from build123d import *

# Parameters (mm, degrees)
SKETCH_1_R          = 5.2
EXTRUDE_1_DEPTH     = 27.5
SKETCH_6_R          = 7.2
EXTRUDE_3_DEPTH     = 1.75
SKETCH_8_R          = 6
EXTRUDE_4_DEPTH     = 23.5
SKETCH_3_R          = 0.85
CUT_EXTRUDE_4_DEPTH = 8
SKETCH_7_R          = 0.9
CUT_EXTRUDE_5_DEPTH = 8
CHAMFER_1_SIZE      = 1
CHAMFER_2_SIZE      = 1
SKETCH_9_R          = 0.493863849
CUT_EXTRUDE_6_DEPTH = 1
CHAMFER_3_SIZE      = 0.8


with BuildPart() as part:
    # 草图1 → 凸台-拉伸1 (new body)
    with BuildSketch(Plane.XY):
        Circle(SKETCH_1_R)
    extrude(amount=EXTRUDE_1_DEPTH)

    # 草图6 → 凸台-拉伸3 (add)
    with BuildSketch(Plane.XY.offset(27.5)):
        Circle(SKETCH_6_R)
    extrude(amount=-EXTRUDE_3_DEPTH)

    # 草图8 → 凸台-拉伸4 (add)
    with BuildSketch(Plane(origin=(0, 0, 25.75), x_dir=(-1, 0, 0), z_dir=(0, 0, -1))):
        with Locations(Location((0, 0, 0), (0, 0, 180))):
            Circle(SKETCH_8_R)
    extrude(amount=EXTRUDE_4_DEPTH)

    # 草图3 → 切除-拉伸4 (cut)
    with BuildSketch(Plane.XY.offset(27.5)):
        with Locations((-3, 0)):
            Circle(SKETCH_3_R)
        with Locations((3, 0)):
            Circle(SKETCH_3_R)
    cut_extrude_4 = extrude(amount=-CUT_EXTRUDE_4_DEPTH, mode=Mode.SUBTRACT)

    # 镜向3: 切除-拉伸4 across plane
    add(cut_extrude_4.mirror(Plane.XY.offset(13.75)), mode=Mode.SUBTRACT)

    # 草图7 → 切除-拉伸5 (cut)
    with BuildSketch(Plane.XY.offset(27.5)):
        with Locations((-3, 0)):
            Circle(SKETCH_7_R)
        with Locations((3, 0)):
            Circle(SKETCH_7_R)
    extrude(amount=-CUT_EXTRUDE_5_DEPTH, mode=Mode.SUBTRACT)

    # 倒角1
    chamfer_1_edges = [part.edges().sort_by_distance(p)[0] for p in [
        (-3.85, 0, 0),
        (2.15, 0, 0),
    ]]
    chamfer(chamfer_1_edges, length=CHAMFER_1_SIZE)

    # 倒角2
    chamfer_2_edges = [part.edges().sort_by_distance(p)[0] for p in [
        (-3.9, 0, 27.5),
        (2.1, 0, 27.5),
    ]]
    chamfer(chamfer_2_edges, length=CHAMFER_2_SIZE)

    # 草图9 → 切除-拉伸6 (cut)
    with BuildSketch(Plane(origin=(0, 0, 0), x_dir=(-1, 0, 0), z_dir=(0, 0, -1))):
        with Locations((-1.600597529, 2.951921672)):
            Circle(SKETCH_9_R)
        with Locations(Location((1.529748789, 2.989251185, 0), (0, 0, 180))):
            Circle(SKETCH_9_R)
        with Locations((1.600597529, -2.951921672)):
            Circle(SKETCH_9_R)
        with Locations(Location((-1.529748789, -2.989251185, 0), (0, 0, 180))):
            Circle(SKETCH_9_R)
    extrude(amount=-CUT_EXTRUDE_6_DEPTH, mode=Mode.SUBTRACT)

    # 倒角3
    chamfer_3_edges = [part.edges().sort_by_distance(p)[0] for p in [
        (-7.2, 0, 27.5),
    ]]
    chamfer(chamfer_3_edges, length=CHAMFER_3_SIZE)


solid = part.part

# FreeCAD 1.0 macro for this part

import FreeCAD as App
import Part
import Sketcher


def edges_at(feature, points):
    """Names of the edges that pass closest to the given points."""
    edges = feature.Shape.Edges
    near = lambda p: min(range(len(edges)), key=lambda i: edges[i].distToShape(Part.Vertex(*p))[0])
    return sorted({f"Edge{near(p) + 1}" for p in points})

doc = App.newDocument("Part")
body = doc.addObject("PartDesign::Body", "Body")

sketch1 = body.newObject("Sketcher::SketchObject", "Sketch")
sketch1.AttachmentSupport = (doc.getObject("XY_Plane"), [""])
sketch1.MapMode = "FlatFace"
sketch1.addGeometry(Part.Circle(App.Vector(0, 0, 0), App.Vector(0, 0, 1), 5), False)
sketch1.addConstraint([
    Sketcher.Constraint("Coincident", 0, 3, -1, 1),
    Sketcher.Constraint("Diameter", 0, 10.4),
])
pad1 = body.newObject("PartDesign::Pad", "Pad")
pad1.Profile = sketch1
pad1.Length = 27.5

sketch2 = body.newObject("Sketcher::SketchObject", "Sketch001")
sketch2.AttachmentSupport = (doc.getObject("XY_Plane"), [""])
sketch2.MapMode = "FlatFace"
sketch2.AttachmentOffset = App.Placement(App.Vector(0, 0, 27.5), App.Rotation())
sketch2.addGeometry(Part.Circle(App.Vector(0, 0, 0), App.Vector(0, 0, 1), 7), False)
sketch2.addConstraint([
    Sketcher.Constraint("Coincident", 0, 3, -1, 1),
    Sketcher.Constraint("Diameter", 0, 14.4),
])
pad2 = body.newObject("PartDesign::Pad", "Pad001")
pad2.Profile = sketch2
pad2.Length = 1.75
pad2.Reversed = True

sketch3 = body.newObject("Sketcher::SketchObject", "Sketch002")
sketch3.AttachmentSupport = (doc.getObject("XY_Plane"), [""])
sketch3.MapMode = "FlatFace"
sketch3.AttachmentOffset = App.Placement(App.Vector(0, 0, 25.75), App.Rotation())
sketch3.addGeometry(Part.Circle(App.Vector(0, 0, 0), App.Vector(0, 0, 1), 6), False)
sketch3.addConstraint([
    Sketcher.Constraint("Coincident", 0, 3, -1, 1),
    Sketcher.Constraint("Diameter", 0, 12.0),
])
pad3 = body.newObject("PartDesign::Pad", "Pad002")
pad3.Profile = sketch3
pad3.Length = 23.5
pad3.Reversed = True

sketch4 = body.newObject("Sketcher::SketchObject", "Sketch003")
sketch4.AttachmentSupport = (doc.getObject("XY_Plane"), [""])
sketch4.MapMode = "FlatFace"
sketch4.AttachmentOffset = App.Placement(App.Vector(0, 0, 27.5), App.Rotation())
sketch4.addGeometry([
    Part.Circle(App.Vector(-3, 0, 0), App.Vector(0, 0, 1), 0.8),
    Part.Circle(App.Vector(3, 0, 0), App.Vector(0, 0, 1), 0.8),
], False)
sketch4.addConstraint([
    Sketcher.Constraint("Equal", 0, 1),
    Sketcher.Constraint("Symmetric", 0, 3, 1, 3, -1, 1),
    Sketcher.Constraint("PointOnObject", 0, 3, -1),
    Sketcher.Constraint("Diameter", 0, 1.7),
    Sketcher.Constraint("DistanceX", 0, 3, -1, 1, 3.0),
])
pocket1 = body.newObject("PartDesign::Pocket", "Pocket")
pocket1.Profile = sketch4
pocket1.Length = 8
doc.recompute()

datumplane = body.newObject("PartDesign::Plane", "DatumPlane")
datumplane.AttachmentSupport = (doc.getObject("XY_Plane"), [""])
datumplane.MapMode = "FlatFace"
datumplane.AttachmentOffset = App.Placement(App.Vector(0, 0, 13.75), App.Rotation())
mirrored = body.newObject("PartDesign::Mirrored", "Mirrored")
mirrored.Originals = [pocket1]
mirrored.MirrorPlane = (datumplane, [""])
body.Tip = mirrored

sketch5 = body.newObject("Sketcher::SketchObject", "Sketch004")
sketch5.AttachmentSupport = (doc.getObject("XY_Plane"), [""])
sketch5.MapMode = "FlatFace"
sketch5.AttachmentOffset = App.Placement(App.Vector(0, 0, 27.5), App.Rotation())
sketch5.addGeometry([
    Part.Circle(App.Vector(-3, 0, 0), App.Vector(0, 0, 1), 0.9),
    Part.Circle(App.Vector(3, 0, 0), App.Vector(0, 0, 1), 0.9),
], False)
sketch5.addConstraint([
    Sketcher.Constraint("Equal", 0, 1),
    Sketcher.Constraint("Symmetric", 0, 3, 1, 3, -1, 1),
    Sketcher.Constraint("PointOnObject", 0, 3, -1),
    Sketcher.Constraint("Diameter", 0, 1.8),
    Sketcher.Constraint("DistanceX", 0, 3, -1, 1, 3.0),
])
pocket2 = body.newObject("PartDesign::Pocket", "Pocket001")
pocket2.Profile = sketch5
pocket2.Length = 8
doc.recompute()

chamfer = body.newObject("PartDesign::Chamfer", "Chamfer")
chamfer.Base = (pocket2, edges_at(pocket2, [(-3.85, 0, 0), (2.15, 0, 0)]))
chamfer.Size = 1
doc.recompute()

chamfer2 = body.newObject("PartDesign::Chamfer", "Chamfer001")
chamfer2.Base = (chamfer, edges_at(chamfer, [(-3.9, 0, 27.5), (2.1, 0, 27.5)]))
chamfer2.Size = 1

sketch6 = body.newObject("Sketcher::SketchObject", "Sketch005")
sketch6.AttachmentSupport = (doc.getObject("XY_Plane"), [""])
sketch6.MapMode = "FlatFace"
sketch6.addGeometry([
    Part.Circle(App.Vector(1.6, 2.95, 0), App.Vector(0, 0, 1), 0.49),
    Part.Circle(App.Vector(-1.53, 2.99, 0), App.Vector(0, 0, 1), 0.49),
    Part.Circle(App.Vector(-1.6, -2.95, 0), App.Vector(0, 0, 1), 0.49),
    Part.Circle(App.Vector(1.53, -2.99, 0), App.Vector(0, 0, 1), 0.49),
], False)
sketch6.addConstraint([
    Sketcher.Constraint("Equal", 0, 1),
    Sketcher.Constraint("Equal", 1, 2),
    Sketcher.Constraint("Equal", 2, 3),
    Sketcher.Constraint("Symmetric", 0, 3, 2, 3, -1, 1),
    Sketcher.Constraint("Symmetric", 1, 3, 3, 3, -1, 1),
    Sketcher.Constraint("Diameter", 0, 0.987728),
    Sketcher.Constraint("DistanceY", -1, 1, 0, 3, 2.951922),
    Sketcher.Constraint("DistanceX", 1, 3, -1, 1, 1.529749),
    Sketcher.Constraint("DistanceY", -1, 1, 1, 3, 2.989251),
    Sketcher.Constraint("DistanceX", 2, 3, 1, 3, 0.070849),
])
pocket3 = body.newObject("PartDesign::Pocket", "Pocket002")
pocket3.Profile = sketch6
pocket3.Length = 1
pocket3.Reversed = True
doc.recompute()

chamfer3 = body.newObject("PartDesign::Chamfer", "Chamfer002")
chamfer3.Base = (pocket3, edges_at(pocket3, [(-7.2, 0, 27.5)]))
chamfer3.Size = 0.8

doc.recompute()
